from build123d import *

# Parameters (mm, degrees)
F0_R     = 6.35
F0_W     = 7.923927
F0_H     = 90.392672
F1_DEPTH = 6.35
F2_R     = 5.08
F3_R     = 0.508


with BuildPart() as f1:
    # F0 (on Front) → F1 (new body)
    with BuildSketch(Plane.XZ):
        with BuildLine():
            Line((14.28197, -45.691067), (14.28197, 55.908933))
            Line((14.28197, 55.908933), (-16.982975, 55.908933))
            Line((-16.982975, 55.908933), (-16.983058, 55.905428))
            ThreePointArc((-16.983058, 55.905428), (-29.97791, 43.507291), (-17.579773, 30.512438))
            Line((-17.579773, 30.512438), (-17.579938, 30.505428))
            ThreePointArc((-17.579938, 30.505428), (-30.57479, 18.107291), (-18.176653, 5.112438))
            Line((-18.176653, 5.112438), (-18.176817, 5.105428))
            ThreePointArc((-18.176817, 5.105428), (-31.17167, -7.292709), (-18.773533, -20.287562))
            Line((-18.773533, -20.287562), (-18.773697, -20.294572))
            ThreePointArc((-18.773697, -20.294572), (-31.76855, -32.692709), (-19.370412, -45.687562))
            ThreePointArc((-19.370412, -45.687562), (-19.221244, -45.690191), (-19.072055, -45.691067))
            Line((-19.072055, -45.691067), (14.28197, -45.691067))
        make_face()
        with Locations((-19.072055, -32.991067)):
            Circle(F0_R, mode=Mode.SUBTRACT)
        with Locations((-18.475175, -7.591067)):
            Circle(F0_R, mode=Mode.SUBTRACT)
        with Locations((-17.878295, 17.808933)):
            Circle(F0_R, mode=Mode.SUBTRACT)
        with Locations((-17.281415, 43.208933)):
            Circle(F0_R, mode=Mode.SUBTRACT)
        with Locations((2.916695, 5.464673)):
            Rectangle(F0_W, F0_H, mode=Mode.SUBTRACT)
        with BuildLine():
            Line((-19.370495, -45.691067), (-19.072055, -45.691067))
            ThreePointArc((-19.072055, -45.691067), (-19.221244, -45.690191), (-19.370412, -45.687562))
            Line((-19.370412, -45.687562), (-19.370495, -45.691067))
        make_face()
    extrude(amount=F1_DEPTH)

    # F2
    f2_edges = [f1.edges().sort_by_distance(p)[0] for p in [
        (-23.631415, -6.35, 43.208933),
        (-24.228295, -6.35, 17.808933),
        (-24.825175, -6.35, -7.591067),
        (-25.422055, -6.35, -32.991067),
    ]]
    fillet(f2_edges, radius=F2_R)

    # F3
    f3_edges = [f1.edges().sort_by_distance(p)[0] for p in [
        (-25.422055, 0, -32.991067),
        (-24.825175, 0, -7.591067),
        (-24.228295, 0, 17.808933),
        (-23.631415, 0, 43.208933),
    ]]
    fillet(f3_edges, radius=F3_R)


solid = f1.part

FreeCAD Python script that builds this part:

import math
import FreeCAD as App
import Part
import Sketcher
from FreeCAD import Vector
Q = App.Units.Quantity


def edges_at(feature, points):
    """Names of the edges that pass closest to the given points."""
    edges = feature.Shape.Edges
    near = lambda p: min(range(len(edges)), key=lambda i: edges[i].distToShape(Part.Vertex(*p))[0])
    return sorted({f"Edge{near(p) + 1}" for p in points})


def add_polygon(sketch, points):
    """Adds a closed chain of lines whose ends are joined by coincident constraints."""
    first, n = sketch.GeometryCount, len(points)
    for a, b in zip(points, points[1:] + points[:1]):
        sketch.addGeometry(Part.LineSegment(App.Vector(*a, 0), App.Vector(*b, 0)), False)
    for i in range(n):
        sketch.addConstraint(Sketcher.Constraint("Coincident", first + i, 2, first + (i + 1) % n, 1))

doc = App.newDocument("Part")
body = doc.addObject("PartDesign::Body", "Body")

sketch1 = doc.addObject("Sketcher::SketchObject", "Sketch")
body.addObject(sketch1)
sketch1.AttachmentSupport = (doc.XZ_Plane, [""])
sketch1.MapMode = "FlatFace"
sketch1.addGeometry(Part.LineSegment(Vector(14.282, -45.6911, 0), Vector(14.282, 55.9089, 0)), False)
sketch1.addGeometry(Part.LineSegment(Vector(14.282, 55.9089, 0), Vector(-16.983, 55.9089, 0)), False)
sketch1.addGeometry(Part.LineSegment(Vector(-16.983, 55.9089, 0), Vector(-16.9831, 55.9054, 0)), False)
sketch1.addGeometry(Part.ArcOfCircle(Part.Circle(Vector(-17.2814, 43.2089, 0), Vector(0, 0, 1), 12.7), math.radians(89), math.radians(269)), False)
sketch1.addGeometry(Part.LineSegment(Vector(-17.5798, 30.5124, 0), Vector(-17.5799, 30.5054, 0)), False)
sketch1.addGeometry(Part.ArcOfCircle(Part.Circle(Vector(-17.8783, 17.8089, 0), Vector(0, 0, 1), 12.7), math.radians(89), math.radians(269)), False)
sketch1.addGeometry(Part.LineSegment(Vector(-18.1767, 5.1124, 0), Vector(-18.1768, 5.1054, 0)), False)
sketch1.addGeometry(Part.ArcOfCircle(Part.Circle(Vector(-18.4752, -7.5911, 0), Vector(0, 0, 1), 12.7), math.radians(89), math.radians(269)), False)
sketch1.addGeometry(Part.LineSegment(Vector(-18.7735, -20.2876, 0), Vector(-18.7737, -20.2946, 0)), False)
sketch1.addGeometry(Part.ArcOfCircle(Part.Circle(Vector(-19.0721, -32.9911, 0), Vector(0, 0, 1), 12.7), math.radians(89), math.radians(269)), False)
sketch1.addGeometry(Part.LineSegment(Vector(-19.3704, -45.6876, 0), Vector(-19.3705, -45.6911, 0)), False)
sketch1.addGeometry(Part.LineSegment(Vector(-19.3705, -45.6911, 0), Vector(14.282, -45.6911, 0)), False)
sketch1.addGeometry(Part.Circle(Vector(-19.0721, -32.9911, 0), Vector(0, 0, 1), 6.35), False)
sketch1.addGeometry(Part.Circle(Vector(-18.4752, -7.5911, 0), Vector(0, 0, 1), 6.35), False)
sketch1.addGeometry(Part.Circle(Vector(-17.8783, 17.8089, 0), Vector(0, 0, 1), 6.35), False)
sketch1.addGeometry(Part.Circle(Vector(-17.2814, 43.2089, 0), Vector(0, 0, 1), 6.35), False)
add_polygon(sketch1, [(6.8787, -39.7317), (-1.0453, -39.7317), (-1.0453, 50.661), (6.8787, 50.661)])
sketch1.addConstraint([
    Sketcher.Constraint("Coincident", 0, 2, 1, 1),
    Sketcher.Constraint("Coincident", 1, 2, 2, 1),
    Sketcher.Constraint("Coincident", 2, 2, 3, 1),
    Sketcher.Constraint("Coincident", 3, 2, 4, 1),
    Sketcher.Constraint("Coincident", 4, 2, 5, 1),
    Sketcher.Constraint("Coincident", 5, 2, 6, 1),
    Sketcher.Constraint("Coincident", 6, 2, 7, 1),
    Sketcher.Constraint("Coincident", 7, 2, 8, 1),
    Sketcher.Constraint("Coincident", 8, 2, 9, 1),
    Sketcher.Constraint("Coincident", 9, 2, 10, 1),
    Sketcher.Constraint("Coincident", 10, 2, 11, 1),
    Sketcher.Constraint("Coincident", 11, 2, 0, 1),
    Sketcher.Constraint("Vertical", 0),
    Sketcher.Constraint("Horizontal", 1),
    Sketcher.Constraint("Horizontal", 11),
    Sketcher.Constraint("Horizontal", 16),
    Sketcher.Constraint("Vertical", 17),
    Sketcher.Constraint("Horizontal", 18),
    Sketcher.Constraint("Vertical", 19),
    Sketcher.Constraint("Coincident", 12, 3, 9, 3),
    Sketcher.Constraint("Coincident", 13, 3, 7, 3),
    Sketcher.Constraint("Coincident", 14, 3, 5, 3),
    Sketcher.Constraint("Coincident", 15, 3, 3, 3),
    Sketcher.Constraint("Equal", 3, 5),
    Sketcher.Constraint("Equal", 5, 7),
    Sketcher.Constraint("Equal", 7, 9),
    Sketcher.Constraint("Equal", 12, 13),
    Sketcher.Constraint("Equal", 13, 14),
    Sketcher.Constraint("Equal", 14, 15),
    Sketcher.Constraint("Parallel", 6, 8),
    Sketcher.Constraint("Parallel", 2, 10),
    Sketcher.Constraint("Equal", 4, 6),
    Sketcher.Constraint("Equal", 6, 8),
    Sketcher.Constraint("Equal", 2, 10),
    Sketcher.Constraint("Diameter", 12, Q("0.5 in")),
    Sketcher.Constraint("Radius", 3, Q("0.5 in")),
    Sketcher.Constraint("DistanceY", 0, 1, 0, 2, Q("4 in")),
    Sketcher.Constraint("DistanceY", 5, 3, 3, 3, Q("1 in")),
    Sketcher.Constraint("DistanceY", 7, 3, 5, 3, Q("1 in")),
    Sketcher.Constraint("DistanceY", 9, 3, 7, 3, Q("1 in")),
    Sketcher.Constraint("DistanceY", 9, 2, 7, 2, Q("1 in")),
    Sketcher.Constraint("DistanceY", 15, 3, 0, 2, Q("0.5 in")),
    Sketcher.Constraint("DistanceX", 11, 1, 11, 2, Q("1.3249002 in")),
    Sketcher.Constraint("DistanceY", 9, 2, 16, 2, 5.955899),
    Sketcher.Constraint("Distance", 4, 0.007012),
    Sketcher.Constraint("DistanceX", 1, 2, 1, 1, 31.264945),
    Sketcher.Constraint("DistanceX", 16, 2, 16, 1, 7.923927),
    Sketcher.Constraint("DistanceY", 17, 1, 17, 2, 90.392672),
    Sketcher.Constraint("DistanceX", -1, 1, 0, 2, 14.28197),
    Sketcher.Constraint("DistanceX", 2, 2, -1, 1, 16.983058),
    Sketcher.Constraint("DistanceY", -1, 1, 3, 2, 30.512438),
    Sketcher.Constraint("DistanceY", -1, 1, 5, 2, 5.112438),
    Sketcher.Constraint("DistanceY", 7, 2, -1, 1, 20.287562),
    Sketcher.Constraint("DistanceY", 8, 2, -1, 1, 20.294572),
    Sketcher.Constraint("DistanceX", 16, 2, -1, 1, 1.045268),
    Sketcher.Constraint("DistanceY", 4, 2, 3, 2, 0.00701),
])
pad1 = doc.addObject("PartDesign::Pad", "Pad")
body.addObject(pad1)
pad1.Profile = sketch1
pad1.Length = Q("0.25 in")
doc.recompute()

fillet = doc.addObject("PartDesign::Fillet", "Fillet")
body.addObject(fillet)
fillet.Base = (pad1, edges_at(pad1, [
    (-23.631, -6.35, 43.209),
    (-24.228, -6.35, 17.809),
    (-24.825, -6.35, -7.591),
    (-25.422, -6.35, -32.991),
]))
fillet.Radius = Q("0.2 in")
doc.recompute()

fillet2 = doc.addObject("PartDesign::Fillet", "Fillet001")
body.addObject(fillet2)
fillet2.Base = (fillet, edges_at(fillet, [
    (-25.422, 0, -32.991),
    (-24.825, 0, -7.591),
    (-24.228, 0, 17.809),
    (-23.631, 0, 43.209),
]))
fillet2.Radius = Q("0.02 in")

doc.recompute()
